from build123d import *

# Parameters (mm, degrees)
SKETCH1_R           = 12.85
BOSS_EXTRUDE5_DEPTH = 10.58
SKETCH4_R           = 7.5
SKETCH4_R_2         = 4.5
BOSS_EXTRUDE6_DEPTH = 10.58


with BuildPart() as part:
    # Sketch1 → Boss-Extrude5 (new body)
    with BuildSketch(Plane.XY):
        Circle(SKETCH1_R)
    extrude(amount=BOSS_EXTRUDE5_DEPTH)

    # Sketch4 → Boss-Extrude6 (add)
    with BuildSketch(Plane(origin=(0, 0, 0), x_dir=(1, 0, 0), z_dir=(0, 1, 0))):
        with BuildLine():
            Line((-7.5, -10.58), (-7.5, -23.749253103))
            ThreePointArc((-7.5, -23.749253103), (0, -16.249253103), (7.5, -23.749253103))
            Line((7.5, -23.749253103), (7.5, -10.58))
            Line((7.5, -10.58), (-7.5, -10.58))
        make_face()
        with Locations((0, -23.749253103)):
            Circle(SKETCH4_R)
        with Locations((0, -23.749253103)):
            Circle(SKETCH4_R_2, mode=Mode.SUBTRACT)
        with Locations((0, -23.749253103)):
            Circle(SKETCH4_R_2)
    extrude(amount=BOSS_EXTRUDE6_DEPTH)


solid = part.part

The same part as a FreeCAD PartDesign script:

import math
import FreeCAD as App
import Part
import Sketcher
from FreeCAD import Vector

doc = App.newDocument("Part")
body = doc.addObject("PartDesign::Body", "Body")

sketch1 = body.newObject("Sketcher::SketchObject", "Sketch")
sketch1.AttachmentSupport = (doc.getObject("XY_Plane"), [""])
sketch1.MapMode = "FlatFace"
sketch1.addGeometry(Part.Circle(Vector(0, 0, 0), Vector(0, 0, 1), 13), False)
sketch1.addConstraint(Sketcher.Constraint("Coincident", 0, 3, -1, 1))
sketch1.addConstraint(Sketcher.Constraint("Diameter", 0, 25.7))
pad1 = body.newObject("PartDesign::Pad", "Pad")
pad1.Profile = sketch1
pad1.Length = 10.58

sketch2 = body.newObject("Sketcher::SketchObject", "Sketch001")
sketch2.AttachmentSupport = (doc.getObject("XZ_Plane"), [""])
sketch2.MapMode = "FlatFace"
sketch2.addGeometry(Part.LineSegment(Vector(-8, 11, 0), Vector(-8, 24, 0)), False)
sketch2.addGeometry(Part.ArcOfCircle(Part.Circle(Vector(0, 24, 0), Vector(0, 0, 1), 8), math.radians(0), math.radians(180)), False)
sketch2.addGeometry(Part.LineSegment(Vector(8, 24, 0), Vector(8, 11, 0)), False)
sketch2.addGeometry(Part.LineSegment(Vector(8, 11, 0), Vector(-8, 11, 0)), False)
sketch2.addConstraint(Sketcher.Constraint("Tangent", 0, 2, 1, 2))
sketch2.addConstraint(Sketcher.Constraint("Tangent", 1, 1, 2, 1))
sketch2.addConstraint(Sketcher.Constraint("Coincident", 2, 2, 3, 1))
sketch2.addConstraint(Sketcher.Constraint("Coincident", 3, 2, 0, 1))
sketch2.addConstraint(Sketcher.Constraint("Vertical", 0))
sketch2.addConstraint(Sketcher.Constraint("Vertical", 2))
sketch2.addConstraint(Sketcher.Constraint("Horizontal", 3))
sketch2.addConstraint(Sketcher.Constraint("PointOnObject", 1, 3, -2))
sketch2.addConstraint(Sketcher.Constraint("Radius", 1, 7.5))
sketch2.addConstraint(Sketcher.Constraint("DistanceY", -1, 1, 2, 2, 10.58))
sketch2.addConstraint(Sketcher.Constraint("DistanceY", 0, 1, 0, 2, 13.169253))
pad2 = body.newObject("PartDesign::Pad", "Pad001")
pad2.Profile = sketch2
pad2.Length = 10.58
pad2.Reversed = True

doc.recompute()
